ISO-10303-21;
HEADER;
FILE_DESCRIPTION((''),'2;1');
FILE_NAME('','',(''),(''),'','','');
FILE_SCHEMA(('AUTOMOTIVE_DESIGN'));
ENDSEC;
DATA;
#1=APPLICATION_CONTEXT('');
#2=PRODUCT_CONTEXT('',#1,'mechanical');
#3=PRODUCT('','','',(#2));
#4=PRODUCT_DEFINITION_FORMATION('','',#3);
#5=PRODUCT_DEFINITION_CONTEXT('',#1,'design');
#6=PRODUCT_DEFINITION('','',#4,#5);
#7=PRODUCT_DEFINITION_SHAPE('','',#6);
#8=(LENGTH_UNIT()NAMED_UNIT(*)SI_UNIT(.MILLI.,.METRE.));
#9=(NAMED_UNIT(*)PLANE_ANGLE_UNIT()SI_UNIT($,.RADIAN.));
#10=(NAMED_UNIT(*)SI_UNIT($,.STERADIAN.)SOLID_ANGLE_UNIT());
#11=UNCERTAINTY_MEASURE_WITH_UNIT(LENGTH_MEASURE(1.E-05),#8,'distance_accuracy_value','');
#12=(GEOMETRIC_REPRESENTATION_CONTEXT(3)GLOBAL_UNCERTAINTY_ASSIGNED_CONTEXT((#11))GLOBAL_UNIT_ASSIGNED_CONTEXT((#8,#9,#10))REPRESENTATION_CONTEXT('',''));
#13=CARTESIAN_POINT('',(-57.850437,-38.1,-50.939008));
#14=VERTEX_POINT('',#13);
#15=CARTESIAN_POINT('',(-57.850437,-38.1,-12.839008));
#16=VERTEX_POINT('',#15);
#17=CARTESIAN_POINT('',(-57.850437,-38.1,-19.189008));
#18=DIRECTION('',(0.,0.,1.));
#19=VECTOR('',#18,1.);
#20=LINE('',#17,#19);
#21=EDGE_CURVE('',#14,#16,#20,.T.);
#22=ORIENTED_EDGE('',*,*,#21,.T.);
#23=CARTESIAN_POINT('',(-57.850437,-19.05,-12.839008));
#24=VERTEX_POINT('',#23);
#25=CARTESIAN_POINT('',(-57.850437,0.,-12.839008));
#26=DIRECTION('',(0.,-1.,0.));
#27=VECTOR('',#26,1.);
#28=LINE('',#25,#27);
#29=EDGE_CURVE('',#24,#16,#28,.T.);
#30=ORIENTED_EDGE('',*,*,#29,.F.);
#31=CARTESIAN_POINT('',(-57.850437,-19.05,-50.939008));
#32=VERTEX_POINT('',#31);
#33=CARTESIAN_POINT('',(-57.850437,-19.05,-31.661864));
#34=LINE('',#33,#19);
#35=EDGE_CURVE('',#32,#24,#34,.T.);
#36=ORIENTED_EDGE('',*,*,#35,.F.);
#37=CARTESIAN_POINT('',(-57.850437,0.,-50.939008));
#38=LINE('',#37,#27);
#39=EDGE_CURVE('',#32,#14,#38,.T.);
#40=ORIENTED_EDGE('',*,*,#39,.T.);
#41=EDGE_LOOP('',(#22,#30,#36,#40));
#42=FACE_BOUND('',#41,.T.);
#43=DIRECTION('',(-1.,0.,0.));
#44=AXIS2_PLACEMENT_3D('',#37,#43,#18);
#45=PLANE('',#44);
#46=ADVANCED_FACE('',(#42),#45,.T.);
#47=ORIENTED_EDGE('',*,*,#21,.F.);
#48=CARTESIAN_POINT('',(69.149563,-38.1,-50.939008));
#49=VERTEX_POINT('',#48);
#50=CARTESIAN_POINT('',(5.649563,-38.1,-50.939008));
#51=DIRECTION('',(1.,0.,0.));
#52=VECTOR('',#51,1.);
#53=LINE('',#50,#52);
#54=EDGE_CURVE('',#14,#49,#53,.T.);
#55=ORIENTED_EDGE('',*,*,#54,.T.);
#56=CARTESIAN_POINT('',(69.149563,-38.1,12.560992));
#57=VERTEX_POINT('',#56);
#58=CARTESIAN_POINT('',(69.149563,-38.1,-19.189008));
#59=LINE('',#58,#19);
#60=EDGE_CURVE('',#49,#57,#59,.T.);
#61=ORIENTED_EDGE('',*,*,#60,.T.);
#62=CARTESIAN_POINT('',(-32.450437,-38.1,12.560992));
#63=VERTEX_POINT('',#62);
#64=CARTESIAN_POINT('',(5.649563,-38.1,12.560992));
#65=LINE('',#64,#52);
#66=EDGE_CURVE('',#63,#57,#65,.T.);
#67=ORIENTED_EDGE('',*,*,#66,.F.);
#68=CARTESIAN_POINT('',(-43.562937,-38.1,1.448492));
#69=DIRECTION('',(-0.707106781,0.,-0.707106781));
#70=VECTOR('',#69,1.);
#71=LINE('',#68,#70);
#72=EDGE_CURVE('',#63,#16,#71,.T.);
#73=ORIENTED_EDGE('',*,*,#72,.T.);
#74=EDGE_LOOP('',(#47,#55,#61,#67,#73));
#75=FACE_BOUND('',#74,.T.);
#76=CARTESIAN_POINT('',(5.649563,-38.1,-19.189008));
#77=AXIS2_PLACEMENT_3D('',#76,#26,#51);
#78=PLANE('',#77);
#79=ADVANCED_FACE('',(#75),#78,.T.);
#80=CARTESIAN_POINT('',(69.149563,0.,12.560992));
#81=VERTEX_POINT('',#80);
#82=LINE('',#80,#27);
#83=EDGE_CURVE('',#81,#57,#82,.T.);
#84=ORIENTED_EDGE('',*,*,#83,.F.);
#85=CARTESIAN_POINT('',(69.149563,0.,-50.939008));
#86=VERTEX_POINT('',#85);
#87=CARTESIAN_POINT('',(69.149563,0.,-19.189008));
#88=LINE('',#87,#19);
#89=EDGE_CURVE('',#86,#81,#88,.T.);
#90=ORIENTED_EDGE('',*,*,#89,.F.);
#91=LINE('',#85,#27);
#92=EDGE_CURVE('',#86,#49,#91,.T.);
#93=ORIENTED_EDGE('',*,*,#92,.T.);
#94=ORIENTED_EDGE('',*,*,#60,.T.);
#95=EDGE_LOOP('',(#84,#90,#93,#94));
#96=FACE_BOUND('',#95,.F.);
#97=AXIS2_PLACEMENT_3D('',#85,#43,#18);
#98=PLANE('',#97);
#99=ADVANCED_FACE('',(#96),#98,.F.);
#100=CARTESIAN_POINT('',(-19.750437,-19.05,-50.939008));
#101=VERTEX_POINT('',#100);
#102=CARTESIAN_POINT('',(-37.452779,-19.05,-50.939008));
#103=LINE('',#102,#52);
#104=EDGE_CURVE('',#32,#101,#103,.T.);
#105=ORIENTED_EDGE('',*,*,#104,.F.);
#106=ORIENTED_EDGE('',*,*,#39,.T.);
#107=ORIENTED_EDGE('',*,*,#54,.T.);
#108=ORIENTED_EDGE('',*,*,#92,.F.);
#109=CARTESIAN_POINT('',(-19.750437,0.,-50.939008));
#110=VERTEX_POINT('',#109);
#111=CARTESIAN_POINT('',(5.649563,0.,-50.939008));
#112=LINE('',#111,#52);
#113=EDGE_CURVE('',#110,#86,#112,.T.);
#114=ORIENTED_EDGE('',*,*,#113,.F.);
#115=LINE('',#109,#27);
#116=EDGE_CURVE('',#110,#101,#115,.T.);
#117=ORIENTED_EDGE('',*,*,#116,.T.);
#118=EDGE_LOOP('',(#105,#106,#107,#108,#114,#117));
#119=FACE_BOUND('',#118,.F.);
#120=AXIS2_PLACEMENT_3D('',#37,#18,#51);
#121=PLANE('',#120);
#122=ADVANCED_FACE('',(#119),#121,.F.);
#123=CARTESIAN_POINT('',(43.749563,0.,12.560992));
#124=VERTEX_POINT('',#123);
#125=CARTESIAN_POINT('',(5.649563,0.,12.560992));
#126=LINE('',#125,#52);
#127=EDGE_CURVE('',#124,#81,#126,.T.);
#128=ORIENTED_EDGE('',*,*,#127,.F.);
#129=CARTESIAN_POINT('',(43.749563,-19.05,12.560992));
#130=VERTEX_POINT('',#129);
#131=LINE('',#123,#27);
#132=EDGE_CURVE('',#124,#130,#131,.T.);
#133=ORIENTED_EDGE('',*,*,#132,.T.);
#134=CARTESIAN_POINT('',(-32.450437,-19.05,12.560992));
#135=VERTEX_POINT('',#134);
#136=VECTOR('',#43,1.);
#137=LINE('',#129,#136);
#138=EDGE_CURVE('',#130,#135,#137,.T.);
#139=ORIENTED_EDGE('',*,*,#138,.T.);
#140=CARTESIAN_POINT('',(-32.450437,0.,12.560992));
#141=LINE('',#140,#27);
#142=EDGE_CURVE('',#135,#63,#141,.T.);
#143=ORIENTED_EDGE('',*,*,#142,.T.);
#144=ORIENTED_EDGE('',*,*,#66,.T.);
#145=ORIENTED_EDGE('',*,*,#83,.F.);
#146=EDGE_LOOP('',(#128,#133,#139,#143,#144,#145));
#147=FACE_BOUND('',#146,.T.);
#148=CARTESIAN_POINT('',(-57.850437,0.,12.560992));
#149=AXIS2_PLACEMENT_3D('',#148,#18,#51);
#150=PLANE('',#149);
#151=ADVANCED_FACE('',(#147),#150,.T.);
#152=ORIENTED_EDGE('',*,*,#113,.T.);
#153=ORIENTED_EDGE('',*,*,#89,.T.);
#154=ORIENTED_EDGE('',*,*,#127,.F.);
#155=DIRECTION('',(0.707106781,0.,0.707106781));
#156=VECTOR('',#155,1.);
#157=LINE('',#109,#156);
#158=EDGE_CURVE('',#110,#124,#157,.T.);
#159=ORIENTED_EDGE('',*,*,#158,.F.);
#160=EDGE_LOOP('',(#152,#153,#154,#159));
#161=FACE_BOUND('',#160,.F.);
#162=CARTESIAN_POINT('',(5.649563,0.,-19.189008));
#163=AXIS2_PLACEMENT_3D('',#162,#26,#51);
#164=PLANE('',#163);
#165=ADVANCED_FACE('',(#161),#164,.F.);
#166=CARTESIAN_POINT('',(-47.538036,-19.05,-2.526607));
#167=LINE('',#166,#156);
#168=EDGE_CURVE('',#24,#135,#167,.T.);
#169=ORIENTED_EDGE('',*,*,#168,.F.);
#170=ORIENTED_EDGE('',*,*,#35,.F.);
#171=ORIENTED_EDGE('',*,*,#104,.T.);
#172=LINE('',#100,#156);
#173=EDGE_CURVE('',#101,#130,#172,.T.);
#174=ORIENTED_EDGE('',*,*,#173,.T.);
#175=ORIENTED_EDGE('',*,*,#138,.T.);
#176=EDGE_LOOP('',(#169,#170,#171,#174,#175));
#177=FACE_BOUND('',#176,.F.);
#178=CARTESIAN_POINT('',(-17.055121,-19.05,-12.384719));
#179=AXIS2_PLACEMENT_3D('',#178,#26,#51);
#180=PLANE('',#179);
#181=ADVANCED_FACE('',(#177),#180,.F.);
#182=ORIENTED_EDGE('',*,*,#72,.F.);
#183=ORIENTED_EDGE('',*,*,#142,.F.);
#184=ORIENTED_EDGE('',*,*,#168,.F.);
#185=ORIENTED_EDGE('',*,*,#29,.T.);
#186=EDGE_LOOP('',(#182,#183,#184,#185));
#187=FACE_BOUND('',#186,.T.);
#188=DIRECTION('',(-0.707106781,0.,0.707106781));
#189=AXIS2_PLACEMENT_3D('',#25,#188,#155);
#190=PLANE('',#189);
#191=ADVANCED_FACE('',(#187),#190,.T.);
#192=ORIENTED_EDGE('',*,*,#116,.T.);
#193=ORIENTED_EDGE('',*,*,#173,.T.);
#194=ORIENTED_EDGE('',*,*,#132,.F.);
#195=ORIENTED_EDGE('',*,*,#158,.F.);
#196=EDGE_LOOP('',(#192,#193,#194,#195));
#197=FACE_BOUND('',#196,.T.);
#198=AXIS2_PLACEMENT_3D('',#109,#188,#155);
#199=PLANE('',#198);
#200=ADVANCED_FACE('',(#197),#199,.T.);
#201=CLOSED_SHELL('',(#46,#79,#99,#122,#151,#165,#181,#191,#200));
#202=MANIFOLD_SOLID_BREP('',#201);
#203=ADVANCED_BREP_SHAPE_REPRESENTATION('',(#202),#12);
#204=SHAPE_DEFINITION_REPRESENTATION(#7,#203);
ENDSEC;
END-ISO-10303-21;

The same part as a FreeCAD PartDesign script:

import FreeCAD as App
import Part
import Sketcher

V = App.Vector
Q = App.Units.Quantity


def add_polygon(sketch, points):
    """Adds a closed chain of lines whose ends are joined by coincident constraints."""
    first, n = sketch.GeometryCount, len(points)
    for a, b in zip(points, points[1:] + points[:1]):
        sketch.addGeometry(Part.LineSegment(App.Vector(*a, 0), App.Vector(*b, 0)), False)
    for i in range(n):
        sketch.addConstraint(Sketcher.Constraint("Coincident", first + i, 2, first + (i + 1) % n, 1))

doc = App.newDocument("Part")
body = doc.addObject("PartDesign::Body", "Body")

sketch1 = doc.addObject("Sketcher::SketchObject", "Sketch")
body.addObject(sketch1)
sketch1.AttachmentSupport = (doc.XZ_Plane, [""])
sketch1.MapMode = "FlatFace"
add_polygon(sketch1, [(-57.850437, 12.560992), (-57.850437, -50.939008), (69.149563, -50.939008), (69.149563, 12.560992)])
sketch1.addConstraint([
    Sketcher.Constraint("Vertical", 0),
    Sketcher.Constraint("Horizontal", 1),
    Sketcher.Constraint("Vertical", 2),
    Sketcher.Constraint("Horizontal", 3),
    Sketcher.Constraint("DistanceX", 1, 1, 1, 2, Q("5 in")),
    Sketcher.Constraint("DistanceY", 0, 2, 0, 1, Q("2.5 in")),
    Sketcher.Constraint("DistanceX", 0, 2, -1, 1, Q("57.850437 mm")),
    Sketcher.Constraint("DistanceY", 0, 2, -1, 1, Q("50.939008 mm")),
])
pad1 = doc.addObject("PartDesign::Pad", "Pad")
body.addObject(pad1)
pad1.Profile = sketch1
pad1.Length = Q("1.5 in")

sketch2 = doc.addObject("Sketcher::SketchObject", "Sketch001")
body.addObject(sketch2)
sketch2.AttachmentSupport = (doc.XZ_Plane, [""])
sketch2.MapMode = "FlatFace"
add_polygon(sketch2, [(-57.850437, -12.839008), (-32.450437, 12.560992), (-61.992485, 12.560992), (-61.992485, -12.82603)])
sketch2.addConstraint([
    Sketcher.Constraint("Horizontal", 1),
    Sketcher.Constraint("Vertical", 2),
    Sketcher.Constraint("Angle", 0, Q("45 deg")),
    Sketcher.Constraint("DistanceY", 3, 2, 1, 2, Q("1 in")),
    Sketcher.Constraint("DistanceX", 1, 2, 1, 1, Q("29.542048 mm")),
    Sketcher.Constraint("DistanceY", 2, 2, 2, 1, Q("25.387022 mm")),
    Sketcher.Constraint("DistanceY", 2, 2, -1, 1, Q("12.82603 mm")),
    Sketcher.Constraint("DistanceX", 0, 2, -1, 1, Q("32.450437 mm")),
])
pocket1 = doc.addObject("PartDesign::Pocket", "Pocket")
body.addObject(pocket1)
pocket1.Profile = sketch2
pocket1.Length = Q("2 in")
pocket1.Reversed = True

sketch3 = doc.addObject("Sketcher::SketchObject", "Sketch002")
body.addObject(sketch3)
sketch3.AttachmentSupport = (doc.XZ_Plane, [""])
sketch3.MapMode = "FlatFace"
add_polygon(sketch3, [(-19.750437, -50.939008), (43.749563, 12.560992), (-59.24404, 12.560992), (-59.24404, -50.99874)])
sketch3.addConstraint([
    Sketcher.Constraint("Horizontal", 1),
    Sketcher.Constraint("Vertical", 2),
    Sketcher.Constraint("Angle", 0, Q("45 deg")),
    Sketcher.Constraint("DistanceY", 3, 2, 1, 2, Q("2.5 in")),
    Sketcher.Constraint("DistanceY", 2, 2, 2, 1, Q("63.559732 mm")),
    Sketcher.Constraint("Distance", 3, Q("39.493648 mm")),
    Sketcher.Constraint("DistanceX", 1, 2, -1, 1, Q("59.24404 mm")),
    Sketcher.Constraint("DistanceY", 2, 2, -1, 1, Q("50.99874 mm")),
])
pocket2 = doc.addObject("PartDesign::Pocket", "Pocket001")
body.addObject(pocket2)
pocket2.Profile = sketch3
pocket2.Length = Q("0.75 in")
pocket2.Reversed = True

doc.recompute()
